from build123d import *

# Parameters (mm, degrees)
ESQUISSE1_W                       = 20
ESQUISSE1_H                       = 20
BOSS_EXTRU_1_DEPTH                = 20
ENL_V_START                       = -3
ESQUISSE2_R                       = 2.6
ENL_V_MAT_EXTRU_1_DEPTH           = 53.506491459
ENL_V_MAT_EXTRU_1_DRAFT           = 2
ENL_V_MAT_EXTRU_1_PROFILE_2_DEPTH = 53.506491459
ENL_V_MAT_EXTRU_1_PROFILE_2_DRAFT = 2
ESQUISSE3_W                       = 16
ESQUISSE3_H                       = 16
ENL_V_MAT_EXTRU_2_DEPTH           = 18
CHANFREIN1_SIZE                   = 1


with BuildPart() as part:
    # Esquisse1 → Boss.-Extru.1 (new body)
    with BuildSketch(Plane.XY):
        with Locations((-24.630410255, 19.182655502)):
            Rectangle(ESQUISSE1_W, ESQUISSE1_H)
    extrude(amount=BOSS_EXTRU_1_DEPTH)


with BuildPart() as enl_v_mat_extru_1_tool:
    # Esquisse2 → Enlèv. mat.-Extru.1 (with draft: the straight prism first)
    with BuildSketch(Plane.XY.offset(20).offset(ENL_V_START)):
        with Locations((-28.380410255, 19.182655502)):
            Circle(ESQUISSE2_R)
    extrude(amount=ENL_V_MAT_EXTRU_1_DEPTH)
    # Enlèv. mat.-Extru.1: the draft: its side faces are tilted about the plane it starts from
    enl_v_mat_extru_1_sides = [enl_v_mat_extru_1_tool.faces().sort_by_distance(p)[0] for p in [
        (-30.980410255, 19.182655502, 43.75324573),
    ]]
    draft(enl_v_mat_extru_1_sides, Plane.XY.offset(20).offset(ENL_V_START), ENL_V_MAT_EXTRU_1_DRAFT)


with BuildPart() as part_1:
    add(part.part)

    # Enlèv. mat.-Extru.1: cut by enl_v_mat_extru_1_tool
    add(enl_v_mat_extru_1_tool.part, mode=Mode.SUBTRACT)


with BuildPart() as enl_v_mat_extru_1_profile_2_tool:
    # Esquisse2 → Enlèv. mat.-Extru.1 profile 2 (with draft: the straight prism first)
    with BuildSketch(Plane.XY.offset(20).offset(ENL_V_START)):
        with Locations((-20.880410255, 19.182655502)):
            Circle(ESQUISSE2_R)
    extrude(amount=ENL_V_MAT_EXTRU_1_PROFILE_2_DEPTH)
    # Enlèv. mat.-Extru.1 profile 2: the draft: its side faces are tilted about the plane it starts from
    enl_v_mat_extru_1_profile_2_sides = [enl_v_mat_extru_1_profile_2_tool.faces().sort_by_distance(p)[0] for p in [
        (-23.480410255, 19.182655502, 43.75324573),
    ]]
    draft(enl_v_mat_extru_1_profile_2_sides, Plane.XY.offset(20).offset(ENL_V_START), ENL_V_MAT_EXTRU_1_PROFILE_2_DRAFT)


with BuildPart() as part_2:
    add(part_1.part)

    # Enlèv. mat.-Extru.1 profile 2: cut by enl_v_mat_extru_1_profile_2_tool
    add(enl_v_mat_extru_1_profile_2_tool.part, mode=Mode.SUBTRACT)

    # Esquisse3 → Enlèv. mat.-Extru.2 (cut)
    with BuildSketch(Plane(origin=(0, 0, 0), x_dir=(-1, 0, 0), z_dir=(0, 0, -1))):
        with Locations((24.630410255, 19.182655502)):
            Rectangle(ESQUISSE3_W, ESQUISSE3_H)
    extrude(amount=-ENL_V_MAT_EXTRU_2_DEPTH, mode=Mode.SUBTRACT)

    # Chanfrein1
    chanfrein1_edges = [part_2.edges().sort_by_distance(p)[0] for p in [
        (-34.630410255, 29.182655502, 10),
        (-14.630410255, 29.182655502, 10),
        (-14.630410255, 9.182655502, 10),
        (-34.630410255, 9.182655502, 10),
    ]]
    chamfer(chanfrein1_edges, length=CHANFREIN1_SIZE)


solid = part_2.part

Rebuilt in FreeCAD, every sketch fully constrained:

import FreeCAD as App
import Part
import Sketcher

V = App.Vector


def edges_at(feature, points):
    """Names of the edges that pass closest to the given points."""
    edges = feature.Shape.Edges
    near = lambda p: min(range(len(edges)), key=lambda i: edges[i].distToShape(Part.Vertex(*p))[0])
    return sorted({f"Edge{near(p) + 1}" for p in points})


def faces_at(feature, points):
    """Names of the faces that lie closest to the given points."""
    faces = feature.Shape.Faces
    near = lambda p: min(range(len(faces)), key=lambda i: faces[i].distToShape(Part.Vertex(*p))[0])
    return sorted({f"Face{near(p) + 1}" for p in points})

doc = App.newDocument("Part")
params = doc.addObject("Spreadsheet::Sheet", "Params")
for row, (alias, value) in enumerate([
    ("sketch1_width", "20 mm"),
    ("pad1_length", "20 mm"),
    ("sketch2_diameter", "5.2 mm"),
    ("pad2_length", "53.506491 mm"),
    ("draft_angle", "2 deg"),
    ("sketch3_diameter", "5.2 mm"),
    ("pad3_length", "53.506491 mm"),
    ("draft2_angle", "2 deg"),
    ("sketch4_width", "16 mm"),
    ("pocket1_length", "18 mm"),
    ("chamfer_size", "1 mm"),
], start=1):
    params.set(f"A{row}", alias)
    params.set(f"B{row}", "=" + value)
    params.setAlias(f"B{row}", alias)

body = doc.addObject("PartDesign::Body", "Body")

# Sketch on XY plane
sketch1 = body.newObject("Sketcher::SketchObject", "Sketch")
sketch1.AttachmentSupport = (doc.getObject("XY_Plane"), [""])
sketch1.MapMode = "FlatFace"
sketch1.addGeometry([
    Part.LineSegment(V(-35, 29, 0), V(-35, 9, 0)),
    Part.LineSegment(V(-35, 9, 0), V(-15, 9, 0)),
    Part.LineSegment(V(-15, 9, 0), V(-15, 29, 0)),
    Part.LineSegment(V(-15, 29, 0), V(-35, 29, 0)),
], False)
sketch1.addConstraint([
    Sketcher.Constraint("Coincident", 0, 2, 1, 1),
    Sketcher.Constraint("Coincident", 1, 2, 2, 1),
    Sketcher.Constraint("Coincident", 2, 2, 3, 1),
    Sketcher.Constraint("Coincident", 3, 2, 0, 1),
    Sketcher.Constraint("Vertical", 0),
    Sketcher.Constraint("Horizontal", 1),
    Sketcher.Constraint("Vertical", 2),
    Sketcher.Constraint("Horizontal", 3),
    Sketcher.Constraint("Equal", 3, 0),
    Sketcher.Constraint("DistanceX", 1, 1, 1, 2, 20.0),
    Sketcher.Constraint("DistanceX", 0, 2, -1, 1, 34.63041),
    Sketcher.Constraint("DistanceY", -1, 1, 0, 2, 9.182656),
])
sketch1.setExpression("Constraints[9]", "Params.sketch1_width")
pad1 = body.newObject("PartDesign::Pad", "Pad")
pad1.Profile = sketch1
pad1.setExpression("Length", "Params.pad1_length")
body2 = doc.addObject("PartDesign::Body", "Body001")

# Sketch on XY plane
sketch2 = body2.newObject("Sketcher::SketchObject", "Sketch001")
sketch2.AttachmentSupport = (doc.getObject("XY_Plane001"), [""])
sketch2.MapMode = "FlatFace"
sketch2.AttachmentOffset = App.Placement(V(0, 0, 17), App.Rotation())
sketch2.addGeometry(Part.Circle(V(-28.4, 19.2, 0), V(0, 0, 1), 2.6), False)
sketch2.addConstraint([
    Sketcher.Constraint("Diameter", 0, 5.2),
    Sketcher.Constraint("DistanceX", 0, 3, -1, 1, 28.38041),
    Sketcher.Constraint("DistanceY", -1, 1, 0, 3, 19.182656),
])
sketch2.setExpression("Constraints[0]", "Params.sketch2_diameter")
pad2 = body2.newObject("PartDesign::Pad", "Pad001")
pad2.Profile = sketch2
pad2.setExpression("Length", "Params.pad2_length")
doc.recompute()

datumplane = body2.newObject("PartDesign::Plane", "DatumPlane")
datumplane.AttachmentSupport = (doc.getObject("XY_Plane001"), [""])
datumplane.MapMode = "FlatFace"
datumplane.AttachmentOffset = App.Placement(V(0, 0, 17), App.Rotation())
draft = body2.newObject("PartDesign::Draft", "Draft")
draft.Base = (pad2, faces_at(pad2, [(-30.98, 19.183, 43.753)]))
draft.NeutralPlane = (datumplane, [""])
draft.setExpression("Angle", "Params.draft_angle")
draft.Reversed = False
doc.recompute()

boolean = body.newObject("PartDesign::Boolean", "Boolean")
boolean.Type = "Cut"
boolean.addObjects([body2])
body3 = doc.addObject("PartDesign::Body", "Body002")

# Sketch on XY plane
sketch3 = body3.newObject("Sketcher::SketchObject", "Sketch002")
sketch3.AttachmentSupport = (doc.getObject("XY_Plane002"), [""])
sketch3.MapMode = "FlatFace"
sketch3.AttachmentOffset = App.Placement(V(0, 0, 17), App.Rotation())
sketch3.addGeometry(Part.Circle(V(-20.9, 19.2, 0), V(0, 0, 1), 2.6), False)
sketch3.addConstraint([
    Sketcher.Constraint("Diameter", 0, 5.2),
    Sketcher.Constraint("DistanceX", 0, 3, -1, 1, 20.88041),
    Sketcher.Constraint("DistanceY", -1, 1, 0, 3, 19.182656),
])
sketch3.setExpression("Constraints[0]", "Params.sketch3_diameter")
pad3 = body3.newObject("PartDesign::Pad", "Pad002")
pad3.Profile = sketch3
pad3.setExpression("Length", "Params.pad3_length")
doc.recompute()

datumplane2 = body3.newObject("PartDesign::Plane", "DatumPlane001")
datumplane2.AttachmentSupport = (doc.getObject("XY_Plane002"), [""])
datumplane2.MapMode = "FlatFace"
datumplane2.AttachmentOffset = App.Placement(V(0, 0, 17), App.Rotation())
draft2 = body3.newObject("PartDesign::Draft", "Draft001")
draft2.Base = (pad3, faces_at(pad3, [(-23.48, 19.183, 43.753)]))
draft2.NeutralPlane = (datumplane2, [""])
draft2.setExpression("Angle", "Params.draft2_angle")
draft2.Reversed = False
doc.recompute()

boolean2 = body.newObject("PartDesign::Boolean", "Boolean001")
boolean2.Type = "Cut"
boolean2.addObjects([body3])

# Sketch on XY plane
sketch4 = body.newObject("Sketcher::SketchObject", "Sketch003")
sketch4.AttachmentSupport = (doc.getObject("XY_Plane"), [""])
sketch4.MapMode = "FlatFace"
sketch4.addGeometry([
    Part.LineSegment(V(-17, 27, 0), V(-17, 11, 0)),
    Part.LineSegment(V(-17, 11, 0), V(-33, 11, 0)),
    Part.LineSegment(V(-33, 11, 0), V(-33, 27, 0)),
    Part.LineSegment(V(-33, 27, 0), V(-17, 27, 0)),
], False)
sketch4.addConstraint([
    Sketcher.Constraint("Coincident", 0, 2, 1, 1),
    Sketcher.Constraint("Coincident", 1, 2, 2, 1),
    Sketcher.Constraint("Coincident", 2, 2, 3, 1),
    Sketcher.Constraint("Coincident", 3, 2, 0, 1),
    Sketcher.Constraint("Vertical", 0),
    Sketcher.Constraint("Horizontal", 1),
    Sketcher.Constraint("Vertical", 2),
    Sketcher.Constraint("Horizontal", 3),
    Sketcher.Constraint("Equal", 3, 0),
    Sketcher.Constraint("DistanceX", 1, 2, 1, 1, 16.0),
    Sketcher.Constraint("DistanceX", 0, 2, -1, 1, 16.63041),
    Sketcher.Constraint("DistanceY", -1, 1, 0, 2, 11.182656),
])
sketch4.setExpression("Constraints[9]", "Params.sketch4_width")
pocket1 = body.newObject("PartDesign::Pocket", "Pocket")
pocket1.Profile = sketch4
pocket1.setExpression("Length", "Params.pocket1_length")
pocket1.Reversed = True
doc.recompute()

chamfer = body.newObject("PartDesign::Chamfer", "Chamfer")
chamfer.Base = (pocket1, edges_at(pocket1, [
    (-34.63, 29.183, 10),
    (-14.63, 29.183, 10),
    (-14.63, 9.183, 10),
    (-34.63, 9.183, 10),
]))
chamfer.setExpression("Size", "Params.chamfer_size")

doc.recompute()
